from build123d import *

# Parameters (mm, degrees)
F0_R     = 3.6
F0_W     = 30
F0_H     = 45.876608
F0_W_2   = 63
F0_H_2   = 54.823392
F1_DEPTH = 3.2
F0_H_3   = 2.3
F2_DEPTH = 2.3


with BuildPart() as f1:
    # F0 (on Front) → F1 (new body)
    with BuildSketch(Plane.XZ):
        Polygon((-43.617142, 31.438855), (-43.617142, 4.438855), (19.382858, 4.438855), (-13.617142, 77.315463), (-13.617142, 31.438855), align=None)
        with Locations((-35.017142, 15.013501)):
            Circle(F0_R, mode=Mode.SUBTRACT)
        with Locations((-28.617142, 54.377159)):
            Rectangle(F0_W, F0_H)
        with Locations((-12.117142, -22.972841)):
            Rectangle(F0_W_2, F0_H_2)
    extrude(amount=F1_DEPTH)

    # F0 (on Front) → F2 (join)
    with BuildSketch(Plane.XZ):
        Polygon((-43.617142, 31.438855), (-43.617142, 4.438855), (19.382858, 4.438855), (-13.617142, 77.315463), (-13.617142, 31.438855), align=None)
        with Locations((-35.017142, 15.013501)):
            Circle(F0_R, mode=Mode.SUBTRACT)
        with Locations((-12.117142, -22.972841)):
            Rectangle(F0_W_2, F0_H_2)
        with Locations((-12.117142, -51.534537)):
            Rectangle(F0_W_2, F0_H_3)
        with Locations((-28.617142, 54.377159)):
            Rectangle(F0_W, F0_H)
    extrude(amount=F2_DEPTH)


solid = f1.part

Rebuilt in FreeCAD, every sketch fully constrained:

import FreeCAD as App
import Part
import Sketcher


def add_polygon(sketch, points):
    """Adds a closed chain of lines whose ends are joined by coincident constraints."""
    first, n = sketch.GeometryCount, len(points)
    for a, b in zip(points, points[1:] + points[:1]):
        sketch.addGeometry(Part.LineSegment(App.Vector(*a, 0), App.Vector(*b, 0)), False)
    for i in range(n):
        sketch.addConstraint(Sketcher.Constraint("Coincident", first + i, 2, first + (i + 1) % n, 1))

doc = App.newDocument("Part")
params = doc.addObject("Spreadsheet::Sheet", "Params")
for row, (alias, value) in enumerate([
    ("sketch1_diameter", "7.2 mm"),
    ("sketch1_width", "30 mm"),
    ("sketch1_width2", "63 mm"),
    ("sketch1_length", "80 mm"),
    ("sketch1_height", "127.7 mm"),
    ("pad1_length", "3.2 mm"),
    ("sketch2_diameter", "7.2 mm"),
    ("sketch2_width", "63 mm"),
    ("sketch2_width2", "30 mm"),
    ("sketch2_height", "130 mm"),
    ("sketch2_length", "80 mm"),
    ("pad2_length", "2.3 mm"),
], start=1):
    params.set(f"A{row}", alias)
    params.set(f"B{row}", "=" + value)
    params.setAlias(f"B{row}", alias)

body = doc.addObject("PartDesign::Body", "Body")

# Sketch on XZ plane
sketch1 = body.newObject("Sketcher::SketchObject", "Sketch")
sketch1.AttachmentSupport = (doc.getObject("XZ_Plane"), [""])
sketch1.MapMode = "FlatFace"
add_polygon(sketch1, [(19.382858, 4.438855), (-13.617142, 77.315463), (-43.617142, 77.315463), (-43.617142, -50.384537), (19.382858, -50.384537)])  # lines 0-4
sketch1.addGeometry(Part.Circle(App.Vector(-35.017142, 15.013501, 0), App.Vector(0, 0, 1), 3.6), False)  # 5
sketch1.addConstraint(Sketcher.Constraint("Horizontal", 1))
sketch1.addConstraint(Sketcher.Constraint("Vertical", 2))
sketch1.addConstraint(Sketcher.Constraint("Horizontal", 3))
sketch1.addConstraint(Sketcher.Constraint("Vertical", 4))
sketch1.addConstraint(Sketcher.Constraint("Diameter", 5, 7.2))
sketch1.addConstraint(Sketcher.Constraint("DistanceX", 1, 2, 1, 1, 30.0))
sketch1.addConstraint(Sketcher.Constraint("DistanceX", 3, 1, 3, 2, 63.0))
sketch1.addConstraint(Sketcher.Constraint("Distance", 0, 80.0))
sketch1.addConstraint(Sketcher.Constraint("DistanceY", 2, 2, 2, 1, 127.7))
sketch1.addConstraint(Sketcher.Constraint("DistanceX", 5, 3, 0, 2, 21.4))
sketch1.addConstraint(Sketcher.Constraint("DistanceY", -1, 1, 5, 3, 15.013501))
sketch1.addConstraint(Sketcher.Constraint("DistanceY", 5, 3, 0, 2, 62.301962))
sketch1.addConstraint(Sketcher.Constraint("DistanceX", 5, 3, -1, 1, 35.017142))
sketch1.setExpression("Constraints[9]", "Params.sketch1_diameter")
sketch1.setExpression("Constraints[10]", "Params.sketch1_width")
sketch1.setExpression("Constraints[11]", "Params.sketch1_width2")
sketch1.setExpression("Constraints[12]", "Params.sketch1_length")
sketch1.setExpression("Constraints[13]", "Params.sketch1_height")
pad1 = body.newObject("PartDesign::Pad", "Pad")
pad1.Profile = sketch1
pad1.setExpression("Length", "Params.pad1_length")

# Sketch on XZ plane
sketch2 = body.newObject("Sketcher::SketchObject", "Sketch001")
sketch2.AttachmentSupport = (doc.getObject("XZ_Plane"), [""])
sketch2.MapMode = "FlatFace"
add_polygon(sketch2, [(-43.617142, -52.684537), (19.382858, -52.684537), (19.382858, 4.438855), (-13.617142, 77.315463), (-43.617142, 77.315463)])  # lines 0-4
sketch2.addGeometry(Part.Circle(App.Vector(-35.017142, 15.013501, 0), App.Vector(0, 0, 1), 3.6), False)  # 5
sketch2.addConstraint(Sketcher.Constraint("Horizontal", 0))
sketch2.addConstraint(Sketcher.Constraint("Vertical", 1))
sketch2.addConstraint(Sketcher.Constraint("Horizontal", 3))
sketch2.addConstraint(Sketcher.Constraint("Vertical", 4))
sketch2.addConstraint(Sketcher.Constraint("Diameter", 5, 7.2))
sketch2.addConstraint(Sketcher.Constraint("DistanceX", 0, 1, 0, 2, 63.0))
sketch2.addConstraint(Sketcher.Constraint("DistanceX", 3, 2, 3, 1, 30.0))
sketch2.addConstraint(Sketcher.Constraint("DistanceY", 4, 2, 4, 1, 130.0))
sketch2.addConstraint(Sketcher.Constraint("Distance", 2, 80.0))
sketch2.addConstraint(Sketcher.Constraint("DistanceX", 5, 3, 0, 2, 54.4))
sketch2.addConstraint(Sketcher.Constraint("DistanceY", -1, 1, 5, 3, 15.013501))
sketch2.addConstraint(Sketcher.Constraint("DistanceY", 5, 3, 2, 2, 62.301962))
sketch2.addConstraint(Sketcher.Constraint("DistanceX", 5, 3, -1, 1, 35.017142))
sketch2.setExpression("Constraints[9]", "Params.sketch2_diameter")
sketch2.setExpression("Constraints[10]", "Params.sketch2_width")
sketch2.setExpression("Constraints[11]", "Params.sketch2_width2")
sketch2.setExpression("Constraints[12]", "Params.sketch2_height")
sketch2.setExpression("Constraints[13]", "Params.sketch2_length")
pad2 = body.newObject("PartDesign::Pad", "Pad001")
pad2.Profile = sketch2
pad2.setExpression("Length", "Params.pad2_length")

doc.recompute()
